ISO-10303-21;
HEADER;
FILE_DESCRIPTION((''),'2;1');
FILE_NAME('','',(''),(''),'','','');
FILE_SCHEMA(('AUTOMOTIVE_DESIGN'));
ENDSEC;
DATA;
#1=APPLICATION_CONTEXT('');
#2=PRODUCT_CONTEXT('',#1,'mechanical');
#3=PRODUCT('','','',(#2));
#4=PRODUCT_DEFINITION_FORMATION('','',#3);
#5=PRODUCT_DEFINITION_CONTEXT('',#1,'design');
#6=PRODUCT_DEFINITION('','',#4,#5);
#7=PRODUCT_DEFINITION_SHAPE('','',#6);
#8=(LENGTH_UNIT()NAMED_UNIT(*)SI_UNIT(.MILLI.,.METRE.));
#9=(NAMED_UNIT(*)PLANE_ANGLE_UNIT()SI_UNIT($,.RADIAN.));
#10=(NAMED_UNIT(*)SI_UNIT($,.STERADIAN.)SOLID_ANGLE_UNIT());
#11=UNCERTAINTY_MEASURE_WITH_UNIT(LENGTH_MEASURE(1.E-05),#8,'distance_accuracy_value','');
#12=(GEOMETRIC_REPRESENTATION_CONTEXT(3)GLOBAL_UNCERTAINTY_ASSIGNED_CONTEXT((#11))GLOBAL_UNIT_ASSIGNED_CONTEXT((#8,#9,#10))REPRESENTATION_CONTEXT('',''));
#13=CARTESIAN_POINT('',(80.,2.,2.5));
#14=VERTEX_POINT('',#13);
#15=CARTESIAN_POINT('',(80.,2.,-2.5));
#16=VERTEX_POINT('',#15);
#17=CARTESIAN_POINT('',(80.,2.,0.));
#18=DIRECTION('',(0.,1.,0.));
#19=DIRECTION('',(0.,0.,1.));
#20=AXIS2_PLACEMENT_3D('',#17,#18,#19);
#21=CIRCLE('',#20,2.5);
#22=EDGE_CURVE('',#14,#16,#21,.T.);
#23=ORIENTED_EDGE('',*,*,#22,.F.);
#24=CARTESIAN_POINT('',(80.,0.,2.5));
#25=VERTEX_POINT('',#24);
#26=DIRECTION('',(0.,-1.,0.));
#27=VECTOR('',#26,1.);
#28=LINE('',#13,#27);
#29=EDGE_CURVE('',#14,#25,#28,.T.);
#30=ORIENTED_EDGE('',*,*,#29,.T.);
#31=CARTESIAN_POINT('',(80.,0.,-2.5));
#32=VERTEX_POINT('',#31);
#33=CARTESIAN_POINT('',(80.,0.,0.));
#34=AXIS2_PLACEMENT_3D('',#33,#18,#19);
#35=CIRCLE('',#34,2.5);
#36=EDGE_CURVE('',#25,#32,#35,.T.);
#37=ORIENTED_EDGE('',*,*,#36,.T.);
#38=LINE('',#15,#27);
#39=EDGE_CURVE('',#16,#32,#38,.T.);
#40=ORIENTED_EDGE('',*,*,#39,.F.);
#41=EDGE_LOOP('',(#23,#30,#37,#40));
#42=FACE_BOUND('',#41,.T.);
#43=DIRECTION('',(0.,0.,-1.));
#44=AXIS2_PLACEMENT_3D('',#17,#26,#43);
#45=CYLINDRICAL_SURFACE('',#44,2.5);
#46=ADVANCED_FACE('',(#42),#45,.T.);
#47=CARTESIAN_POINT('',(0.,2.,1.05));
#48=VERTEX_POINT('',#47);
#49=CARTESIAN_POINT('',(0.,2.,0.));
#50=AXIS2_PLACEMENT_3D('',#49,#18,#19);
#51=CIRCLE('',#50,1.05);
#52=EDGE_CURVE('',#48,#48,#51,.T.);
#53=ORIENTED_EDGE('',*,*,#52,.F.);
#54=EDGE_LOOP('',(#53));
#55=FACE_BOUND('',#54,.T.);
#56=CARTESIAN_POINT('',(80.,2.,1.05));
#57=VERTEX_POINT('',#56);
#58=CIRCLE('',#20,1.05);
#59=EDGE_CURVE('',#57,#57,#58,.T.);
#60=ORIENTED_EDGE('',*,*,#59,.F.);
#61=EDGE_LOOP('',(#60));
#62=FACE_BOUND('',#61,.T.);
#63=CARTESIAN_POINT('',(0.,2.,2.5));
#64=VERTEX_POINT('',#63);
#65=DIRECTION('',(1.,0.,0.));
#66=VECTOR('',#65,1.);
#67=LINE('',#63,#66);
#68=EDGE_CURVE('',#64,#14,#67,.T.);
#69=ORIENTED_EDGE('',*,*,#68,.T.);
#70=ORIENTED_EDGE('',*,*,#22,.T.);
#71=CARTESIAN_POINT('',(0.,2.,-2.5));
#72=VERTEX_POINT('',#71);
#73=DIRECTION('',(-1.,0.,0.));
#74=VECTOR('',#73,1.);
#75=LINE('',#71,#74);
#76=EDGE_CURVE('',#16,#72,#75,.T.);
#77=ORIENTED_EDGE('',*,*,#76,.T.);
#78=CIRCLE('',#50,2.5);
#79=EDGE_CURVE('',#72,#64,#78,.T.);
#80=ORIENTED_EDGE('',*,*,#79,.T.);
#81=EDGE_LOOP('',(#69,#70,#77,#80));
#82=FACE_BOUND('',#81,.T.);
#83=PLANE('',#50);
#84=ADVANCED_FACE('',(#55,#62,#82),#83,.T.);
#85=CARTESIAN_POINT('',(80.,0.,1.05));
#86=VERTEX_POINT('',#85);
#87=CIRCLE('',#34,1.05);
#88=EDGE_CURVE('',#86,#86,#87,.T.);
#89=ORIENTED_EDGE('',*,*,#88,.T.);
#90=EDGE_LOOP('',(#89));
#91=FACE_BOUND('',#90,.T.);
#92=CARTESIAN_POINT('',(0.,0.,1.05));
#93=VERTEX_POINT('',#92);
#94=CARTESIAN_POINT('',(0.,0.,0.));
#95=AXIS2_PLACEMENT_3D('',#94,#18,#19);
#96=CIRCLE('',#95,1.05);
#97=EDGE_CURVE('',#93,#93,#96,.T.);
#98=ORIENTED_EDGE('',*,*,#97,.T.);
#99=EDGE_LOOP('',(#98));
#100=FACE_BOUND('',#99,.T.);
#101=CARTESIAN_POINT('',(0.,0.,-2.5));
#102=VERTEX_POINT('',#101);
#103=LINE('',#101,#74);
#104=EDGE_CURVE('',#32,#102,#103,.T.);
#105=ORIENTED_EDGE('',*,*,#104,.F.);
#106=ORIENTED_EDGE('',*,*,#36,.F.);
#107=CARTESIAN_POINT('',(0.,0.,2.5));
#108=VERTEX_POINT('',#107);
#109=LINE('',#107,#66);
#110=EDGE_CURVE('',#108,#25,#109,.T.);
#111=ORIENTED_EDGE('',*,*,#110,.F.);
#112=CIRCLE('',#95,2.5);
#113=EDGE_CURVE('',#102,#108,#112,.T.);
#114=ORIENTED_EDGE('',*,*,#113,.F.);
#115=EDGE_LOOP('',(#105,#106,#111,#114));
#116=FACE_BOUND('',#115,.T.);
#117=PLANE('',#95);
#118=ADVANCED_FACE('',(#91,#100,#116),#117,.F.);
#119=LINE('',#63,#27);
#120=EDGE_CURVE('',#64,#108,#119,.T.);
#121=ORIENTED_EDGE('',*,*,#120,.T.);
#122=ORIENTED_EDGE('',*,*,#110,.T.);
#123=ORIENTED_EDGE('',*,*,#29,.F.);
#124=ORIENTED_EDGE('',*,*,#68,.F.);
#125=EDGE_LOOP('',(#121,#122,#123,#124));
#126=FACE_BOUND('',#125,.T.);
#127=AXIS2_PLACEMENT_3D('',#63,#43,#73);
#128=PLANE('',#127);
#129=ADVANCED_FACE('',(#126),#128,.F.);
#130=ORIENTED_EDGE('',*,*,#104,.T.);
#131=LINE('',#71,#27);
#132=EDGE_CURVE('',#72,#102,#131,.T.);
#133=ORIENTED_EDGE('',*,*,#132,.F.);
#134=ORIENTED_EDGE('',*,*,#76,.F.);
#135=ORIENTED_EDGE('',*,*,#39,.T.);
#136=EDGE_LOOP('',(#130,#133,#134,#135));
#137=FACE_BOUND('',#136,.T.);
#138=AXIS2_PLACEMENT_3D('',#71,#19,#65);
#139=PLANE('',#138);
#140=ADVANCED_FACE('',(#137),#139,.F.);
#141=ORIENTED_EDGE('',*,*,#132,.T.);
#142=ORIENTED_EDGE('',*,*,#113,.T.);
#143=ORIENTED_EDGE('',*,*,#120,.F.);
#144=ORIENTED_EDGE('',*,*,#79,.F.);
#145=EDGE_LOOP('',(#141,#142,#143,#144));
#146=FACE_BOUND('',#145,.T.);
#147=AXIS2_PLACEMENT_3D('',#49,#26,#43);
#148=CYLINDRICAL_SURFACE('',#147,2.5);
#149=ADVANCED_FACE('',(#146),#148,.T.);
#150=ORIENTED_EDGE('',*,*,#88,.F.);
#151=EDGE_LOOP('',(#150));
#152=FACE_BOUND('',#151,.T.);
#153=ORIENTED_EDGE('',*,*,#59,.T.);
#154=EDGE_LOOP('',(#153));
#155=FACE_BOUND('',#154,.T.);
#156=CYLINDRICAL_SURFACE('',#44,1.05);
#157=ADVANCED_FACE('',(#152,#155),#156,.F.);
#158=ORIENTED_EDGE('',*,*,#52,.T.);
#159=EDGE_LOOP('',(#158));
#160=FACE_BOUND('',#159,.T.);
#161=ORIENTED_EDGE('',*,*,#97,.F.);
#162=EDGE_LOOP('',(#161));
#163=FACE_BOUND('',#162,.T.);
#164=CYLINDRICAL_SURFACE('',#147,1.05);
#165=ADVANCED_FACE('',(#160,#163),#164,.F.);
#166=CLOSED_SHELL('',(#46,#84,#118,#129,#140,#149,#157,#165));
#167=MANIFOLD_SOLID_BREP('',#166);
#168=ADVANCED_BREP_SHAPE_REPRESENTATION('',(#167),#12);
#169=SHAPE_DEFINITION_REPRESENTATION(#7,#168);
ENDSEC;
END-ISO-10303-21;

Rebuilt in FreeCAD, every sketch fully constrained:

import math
import FreeCAD as App
import Part
import Sketcher

doc = App.newDocument("Part")
params = doc.addObject("Spreadsheet::Sheet", "Params")
for row, (alias, value) in enumerate([
    ("sketch1_diameter", "2.1 mm"),
    ("sketch1_radius", "2.5 mm"),
    ("sketch1_width", "80 mm"),
    ("pad1_length", "2 mm"),
], start=1):
    params.set(f"A{row}", alias)
    params.set(f"B{row}", "=" + value)
    params.setAlias(f"B{row}", alias)

body = doc.addObject("PartDesign::Body", "Body")

# Sketch on XZ plane
sketch1 = body.newObject("Sketcher::SketchObject", "Sketch")
sketch1.AttachmentSupport = (doc.getObject("XZ_Plane"), [""])
sketch1.MapMode = "FlatFace"
sketch1.addGeometry([
    Part.LineSegment(App.Vector(80, -2.5, 0), App.Vector(0, -2.5, 0)),  # 0
    Part.ArcOfCircle(Part.Circle(App.Vector(0, 0, 0), App.Vector(0, 0, 1), 2.5), math.radians(90), math.radians(270)),  # 1
    Part.LineSegment(App.Vector(0, 2.5, 0), App.Vector(80, 2.5, 0)),  # 2
    Part.ArcOfCircle(Part.Circle(App.Vector(80, 0, 0), App.Vector(0, 0, 1), 2.5), math.radians(-90), math.radians(90)),  # 3
    Part.Circle(App.Vector(80, 0, 0), App.Vector(0, 0, 1), 1.1),  # 4
    Part.Circle(App.Vector(0, 0, 0), App.Vector(0, 0, 1), 1.1),  # 5
], False)
sketch1.addConstraint([
    Sketcher.Constraint("Tangent", 0, 2, 1, 2),
    Sketcher.Constraint("Tangent", 1, 1, 2, 1),
    Sketcher.Constraint("Tangent", 2, 2, 3, 2),
    Sketcher.Constraint("Tangent", 3, 1, 0, 1),
    Sketcher.Constraint("Horizontal", 0),
    Sketcher.Constraint("Horizontal", 2),
    Sketcher.Constraint("Coincident", 1, 3, -1, 1),
    Sketcher.Constraint("Coincident", 5, 3, -1, 1),
    Sketcher.Constraint("Coincident", 4, 3, 3, 3),
    Sketcher.Constraint("Equal", 4, 5),
    Sketcher.Constraint("Diameter", 4, 2.1),
    Sketcher.Constraint("Radius", 1, 2.5),
    Sketcher.Constraint("DistanceX", 0, 2, 0, 1, 80.0),
])
sketch1.setExpression("Constraints[10]", "Params.sketch1_diameter")
sketch1.setExpression("Constraints[11]", "Params.sketch1_radius")
sketch1.setExpression("Constraints[12]", "Params.sketch1_width")
pad1 = body.newObject("PartDesign::Pad", "Pad")
pad1.Profile = sketch1
pad1.setExpression("Length", "Params.pad1_length")
pad1.Reversed = True

doc.recompute()
